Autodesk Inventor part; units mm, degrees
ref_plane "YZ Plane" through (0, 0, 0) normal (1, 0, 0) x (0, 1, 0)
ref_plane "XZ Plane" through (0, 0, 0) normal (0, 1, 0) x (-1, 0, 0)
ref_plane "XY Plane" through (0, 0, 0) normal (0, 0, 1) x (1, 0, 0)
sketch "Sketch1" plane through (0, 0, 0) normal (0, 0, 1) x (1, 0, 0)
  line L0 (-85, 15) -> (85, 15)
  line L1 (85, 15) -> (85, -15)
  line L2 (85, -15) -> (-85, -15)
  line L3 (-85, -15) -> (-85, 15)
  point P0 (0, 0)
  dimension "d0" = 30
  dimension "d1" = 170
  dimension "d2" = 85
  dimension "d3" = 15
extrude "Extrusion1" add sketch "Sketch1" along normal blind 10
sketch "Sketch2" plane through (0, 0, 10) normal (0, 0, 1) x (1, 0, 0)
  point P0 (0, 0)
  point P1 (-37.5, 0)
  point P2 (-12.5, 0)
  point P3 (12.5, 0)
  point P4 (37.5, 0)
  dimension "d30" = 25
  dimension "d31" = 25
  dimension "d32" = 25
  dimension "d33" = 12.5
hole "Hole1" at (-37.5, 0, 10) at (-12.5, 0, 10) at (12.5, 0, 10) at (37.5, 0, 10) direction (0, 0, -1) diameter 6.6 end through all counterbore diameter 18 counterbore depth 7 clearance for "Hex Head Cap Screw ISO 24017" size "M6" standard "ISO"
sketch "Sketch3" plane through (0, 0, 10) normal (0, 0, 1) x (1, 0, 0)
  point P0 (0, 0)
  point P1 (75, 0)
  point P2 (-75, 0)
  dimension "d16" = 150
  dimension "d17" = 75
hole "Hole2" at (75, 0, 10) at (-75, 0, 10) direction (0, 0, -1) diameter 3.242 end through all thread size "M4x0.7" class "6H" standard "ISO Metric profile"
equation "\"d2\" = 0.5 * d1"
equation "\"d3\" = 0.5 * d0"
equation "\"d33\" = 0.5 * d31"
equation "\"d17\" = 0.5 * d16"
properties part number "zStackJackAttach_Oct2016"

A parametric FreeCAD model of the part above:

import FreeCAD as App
import Part
import Sketcher
from FreeCAD import Vector


def add_polygon(sketch, points):
    """Adds a closed chain of lines whose ends are joined by coincident constraints."""
    first, n = sketch.GeometryCount, len(points)
    for a, b in zip(points, points[1:] + points[:1]):
        sketch.addGeometry(Part.LineSegment(App.Vector(*a, 0), App.Vector(*b, 0)), False)
    for i in range(n):
        sketch.addConstraint(Sketcher.Constraint("Coincident", first + i, 2, first + (i + 1) % n, 1))

doc = App.newDocument("Part")
body = doc.addObject("PartDesign::Body", "Body")

sketch1 = body.newObject("Sketcher::SketchObject", "Sketch")
sketch1.AttachmentSupport = (doc.getObject("XY_Plane"), [""])
sketch1.MapMode = "FlatFace"
add_polygon(sketch1, [(85, 15), (-85, 15), (-85, -15), (85, -15)])
sketch1.addConstraint(Sketcher.Constraint("Horizontal", 0))
sketch1.addConstraint(Sketcher.Constraint("Vertical", 1))
sketch1.addConstraint(Sketcher.Constraint("Horizontal", 2))
sketch1.addConstraint(Sketcher.Constraint("Vertical", 3))
sketch1.addConstraint(Sketcher.Constraint("Symmetric", 0, 2, 2, 2, -1, 1))
sketch1.addConstraint(Sketcher.Constraint("DistanceX", 0, 2, 0, 1, 170.0))
sketch1.addConstraint(Sketcher.Constraint("DistanceY", 1, 2, 1, 1, 30.0))
pad1 = body.newObject("PartDesign::Pad", "Pad")
pad1.Profile = sketch1
pad1.Length = 10

sketch2 = body.newObject("Sketcher::SketchObject", "Sketch001")
sketch2.AttachmentSupport = (doc.getObject("XY_Plane"), [""])
sketch2.MapMode = "FlatFace"
sketch2.AttachmentOffset = App.Placement(Vector(0, 0, 10), App.Rotation())
sketch2.addGeometry(Part.Circle(Vector(-37.5, 0, 0), Vector(0, 0, 1), 3.3), False)
sketch2.addGeometry(Part.Circle(Vector(-12.5, 0, 0), Vector(0, 0, 1), 3.3), False)
sketch2.addGeometry(Part.Circle(Vector(12.5, 0, 0), Vector(0, 0, 1), 3.3), False)
sketch2.addGeometry(Part.Circle(Vector(37.5, 0, 0), Vector(0, 0, 1), 3.3), False)
sketch2.addConstraint(Sketcher.Constraint("Equal", 0, 1))
sketch2.addConstraint(Sketcher.Constraint("Equal", 1, 2))
sketch2.addConstraint(Sketcher.Constraint("Equal", 2, 3))
sketch2.addConstraint(Sketcher.Constraint("Symmetric", 1, 3, 2, 3, -1, 1))
sketch2.addConstraint(Sketcher.Constraint("Symmetric", 0, 3, 3, 3, -1, 1))
sketch2.addConstraint(Sketcher.Constraint("PointOnObject", 0, 3, -1))
sketch2.addConstraint(Sketcher.Constraint("PointOnObject", 1, 3, -1))
sketch2.addConstraint(Sketcher.Constraint("Diameter", 0, 6.6))
sketch2.addConstraint(Sketcher.Constraint("DistanceX", 0, 3, 1, 3, 25.0))
sketch2.addConstraint(Sketcher.Constraint("DistanceX", 1, 3, 2, 3, 25.0))
doc.recompute()
hole = body.newObject("PartDesign::Hole", "Hole")
hole.Profile = sketch2
hole.ThreadType = "None"
hole.Diameter = 6.6
hole.DepthType = "ThroughAll"
hole.HoleCutType = "Counterbore"
hole.HoleCutDiameter = 18
hole.HoleCutDepth = 7

sketch3 = body.newObject("Sketcher::SketchObject", "Sketch002")
sketch3.AttachmentSupport = (doc.getObject("XY_Plane"), [""])
sketch3.MapMode = "FlatFace"
sketch3.AttachmentOffset = App.Placement(Vector(0, 0, 10), App.Rotation())
sketch3.addGeometry(Part.Circle(Vector(75, 0, 0), Vector(0, 0, 1), 1.6), False)
sketch3.addGeometry(Part.Circle(Vector(-75, 0, 0), Vector(0, 0, 1), 1.6), False)
sketch3.addConstraint(Sketcher.Constraint("Equal", 0, 1))
sketch3.addConstraint(Sketcher.Constraint("Symmetric", 0, 3, 1, 3, -1, 1))
sketch3.addConstraint(Sketcher.Constraint("PointOnObject", 0, 3, -1))
sketch3.addConstraint(Sketcher.Constraint("Diameter", 0, 3.242))
sketch3.addConstraint(Sketcher.Constraint("DistanceX", -1, 1, 0, 3, 75.0))
doc.recompute()
hole2 = body.newObject("PartDesign::Hole", "Hole001")
hole2.Profile = sketch3
hole2.ThreadType = "None"
hole2.Diameter = 3.242
hole2.DepthType = "ThroughAll"

doc.recompute()
